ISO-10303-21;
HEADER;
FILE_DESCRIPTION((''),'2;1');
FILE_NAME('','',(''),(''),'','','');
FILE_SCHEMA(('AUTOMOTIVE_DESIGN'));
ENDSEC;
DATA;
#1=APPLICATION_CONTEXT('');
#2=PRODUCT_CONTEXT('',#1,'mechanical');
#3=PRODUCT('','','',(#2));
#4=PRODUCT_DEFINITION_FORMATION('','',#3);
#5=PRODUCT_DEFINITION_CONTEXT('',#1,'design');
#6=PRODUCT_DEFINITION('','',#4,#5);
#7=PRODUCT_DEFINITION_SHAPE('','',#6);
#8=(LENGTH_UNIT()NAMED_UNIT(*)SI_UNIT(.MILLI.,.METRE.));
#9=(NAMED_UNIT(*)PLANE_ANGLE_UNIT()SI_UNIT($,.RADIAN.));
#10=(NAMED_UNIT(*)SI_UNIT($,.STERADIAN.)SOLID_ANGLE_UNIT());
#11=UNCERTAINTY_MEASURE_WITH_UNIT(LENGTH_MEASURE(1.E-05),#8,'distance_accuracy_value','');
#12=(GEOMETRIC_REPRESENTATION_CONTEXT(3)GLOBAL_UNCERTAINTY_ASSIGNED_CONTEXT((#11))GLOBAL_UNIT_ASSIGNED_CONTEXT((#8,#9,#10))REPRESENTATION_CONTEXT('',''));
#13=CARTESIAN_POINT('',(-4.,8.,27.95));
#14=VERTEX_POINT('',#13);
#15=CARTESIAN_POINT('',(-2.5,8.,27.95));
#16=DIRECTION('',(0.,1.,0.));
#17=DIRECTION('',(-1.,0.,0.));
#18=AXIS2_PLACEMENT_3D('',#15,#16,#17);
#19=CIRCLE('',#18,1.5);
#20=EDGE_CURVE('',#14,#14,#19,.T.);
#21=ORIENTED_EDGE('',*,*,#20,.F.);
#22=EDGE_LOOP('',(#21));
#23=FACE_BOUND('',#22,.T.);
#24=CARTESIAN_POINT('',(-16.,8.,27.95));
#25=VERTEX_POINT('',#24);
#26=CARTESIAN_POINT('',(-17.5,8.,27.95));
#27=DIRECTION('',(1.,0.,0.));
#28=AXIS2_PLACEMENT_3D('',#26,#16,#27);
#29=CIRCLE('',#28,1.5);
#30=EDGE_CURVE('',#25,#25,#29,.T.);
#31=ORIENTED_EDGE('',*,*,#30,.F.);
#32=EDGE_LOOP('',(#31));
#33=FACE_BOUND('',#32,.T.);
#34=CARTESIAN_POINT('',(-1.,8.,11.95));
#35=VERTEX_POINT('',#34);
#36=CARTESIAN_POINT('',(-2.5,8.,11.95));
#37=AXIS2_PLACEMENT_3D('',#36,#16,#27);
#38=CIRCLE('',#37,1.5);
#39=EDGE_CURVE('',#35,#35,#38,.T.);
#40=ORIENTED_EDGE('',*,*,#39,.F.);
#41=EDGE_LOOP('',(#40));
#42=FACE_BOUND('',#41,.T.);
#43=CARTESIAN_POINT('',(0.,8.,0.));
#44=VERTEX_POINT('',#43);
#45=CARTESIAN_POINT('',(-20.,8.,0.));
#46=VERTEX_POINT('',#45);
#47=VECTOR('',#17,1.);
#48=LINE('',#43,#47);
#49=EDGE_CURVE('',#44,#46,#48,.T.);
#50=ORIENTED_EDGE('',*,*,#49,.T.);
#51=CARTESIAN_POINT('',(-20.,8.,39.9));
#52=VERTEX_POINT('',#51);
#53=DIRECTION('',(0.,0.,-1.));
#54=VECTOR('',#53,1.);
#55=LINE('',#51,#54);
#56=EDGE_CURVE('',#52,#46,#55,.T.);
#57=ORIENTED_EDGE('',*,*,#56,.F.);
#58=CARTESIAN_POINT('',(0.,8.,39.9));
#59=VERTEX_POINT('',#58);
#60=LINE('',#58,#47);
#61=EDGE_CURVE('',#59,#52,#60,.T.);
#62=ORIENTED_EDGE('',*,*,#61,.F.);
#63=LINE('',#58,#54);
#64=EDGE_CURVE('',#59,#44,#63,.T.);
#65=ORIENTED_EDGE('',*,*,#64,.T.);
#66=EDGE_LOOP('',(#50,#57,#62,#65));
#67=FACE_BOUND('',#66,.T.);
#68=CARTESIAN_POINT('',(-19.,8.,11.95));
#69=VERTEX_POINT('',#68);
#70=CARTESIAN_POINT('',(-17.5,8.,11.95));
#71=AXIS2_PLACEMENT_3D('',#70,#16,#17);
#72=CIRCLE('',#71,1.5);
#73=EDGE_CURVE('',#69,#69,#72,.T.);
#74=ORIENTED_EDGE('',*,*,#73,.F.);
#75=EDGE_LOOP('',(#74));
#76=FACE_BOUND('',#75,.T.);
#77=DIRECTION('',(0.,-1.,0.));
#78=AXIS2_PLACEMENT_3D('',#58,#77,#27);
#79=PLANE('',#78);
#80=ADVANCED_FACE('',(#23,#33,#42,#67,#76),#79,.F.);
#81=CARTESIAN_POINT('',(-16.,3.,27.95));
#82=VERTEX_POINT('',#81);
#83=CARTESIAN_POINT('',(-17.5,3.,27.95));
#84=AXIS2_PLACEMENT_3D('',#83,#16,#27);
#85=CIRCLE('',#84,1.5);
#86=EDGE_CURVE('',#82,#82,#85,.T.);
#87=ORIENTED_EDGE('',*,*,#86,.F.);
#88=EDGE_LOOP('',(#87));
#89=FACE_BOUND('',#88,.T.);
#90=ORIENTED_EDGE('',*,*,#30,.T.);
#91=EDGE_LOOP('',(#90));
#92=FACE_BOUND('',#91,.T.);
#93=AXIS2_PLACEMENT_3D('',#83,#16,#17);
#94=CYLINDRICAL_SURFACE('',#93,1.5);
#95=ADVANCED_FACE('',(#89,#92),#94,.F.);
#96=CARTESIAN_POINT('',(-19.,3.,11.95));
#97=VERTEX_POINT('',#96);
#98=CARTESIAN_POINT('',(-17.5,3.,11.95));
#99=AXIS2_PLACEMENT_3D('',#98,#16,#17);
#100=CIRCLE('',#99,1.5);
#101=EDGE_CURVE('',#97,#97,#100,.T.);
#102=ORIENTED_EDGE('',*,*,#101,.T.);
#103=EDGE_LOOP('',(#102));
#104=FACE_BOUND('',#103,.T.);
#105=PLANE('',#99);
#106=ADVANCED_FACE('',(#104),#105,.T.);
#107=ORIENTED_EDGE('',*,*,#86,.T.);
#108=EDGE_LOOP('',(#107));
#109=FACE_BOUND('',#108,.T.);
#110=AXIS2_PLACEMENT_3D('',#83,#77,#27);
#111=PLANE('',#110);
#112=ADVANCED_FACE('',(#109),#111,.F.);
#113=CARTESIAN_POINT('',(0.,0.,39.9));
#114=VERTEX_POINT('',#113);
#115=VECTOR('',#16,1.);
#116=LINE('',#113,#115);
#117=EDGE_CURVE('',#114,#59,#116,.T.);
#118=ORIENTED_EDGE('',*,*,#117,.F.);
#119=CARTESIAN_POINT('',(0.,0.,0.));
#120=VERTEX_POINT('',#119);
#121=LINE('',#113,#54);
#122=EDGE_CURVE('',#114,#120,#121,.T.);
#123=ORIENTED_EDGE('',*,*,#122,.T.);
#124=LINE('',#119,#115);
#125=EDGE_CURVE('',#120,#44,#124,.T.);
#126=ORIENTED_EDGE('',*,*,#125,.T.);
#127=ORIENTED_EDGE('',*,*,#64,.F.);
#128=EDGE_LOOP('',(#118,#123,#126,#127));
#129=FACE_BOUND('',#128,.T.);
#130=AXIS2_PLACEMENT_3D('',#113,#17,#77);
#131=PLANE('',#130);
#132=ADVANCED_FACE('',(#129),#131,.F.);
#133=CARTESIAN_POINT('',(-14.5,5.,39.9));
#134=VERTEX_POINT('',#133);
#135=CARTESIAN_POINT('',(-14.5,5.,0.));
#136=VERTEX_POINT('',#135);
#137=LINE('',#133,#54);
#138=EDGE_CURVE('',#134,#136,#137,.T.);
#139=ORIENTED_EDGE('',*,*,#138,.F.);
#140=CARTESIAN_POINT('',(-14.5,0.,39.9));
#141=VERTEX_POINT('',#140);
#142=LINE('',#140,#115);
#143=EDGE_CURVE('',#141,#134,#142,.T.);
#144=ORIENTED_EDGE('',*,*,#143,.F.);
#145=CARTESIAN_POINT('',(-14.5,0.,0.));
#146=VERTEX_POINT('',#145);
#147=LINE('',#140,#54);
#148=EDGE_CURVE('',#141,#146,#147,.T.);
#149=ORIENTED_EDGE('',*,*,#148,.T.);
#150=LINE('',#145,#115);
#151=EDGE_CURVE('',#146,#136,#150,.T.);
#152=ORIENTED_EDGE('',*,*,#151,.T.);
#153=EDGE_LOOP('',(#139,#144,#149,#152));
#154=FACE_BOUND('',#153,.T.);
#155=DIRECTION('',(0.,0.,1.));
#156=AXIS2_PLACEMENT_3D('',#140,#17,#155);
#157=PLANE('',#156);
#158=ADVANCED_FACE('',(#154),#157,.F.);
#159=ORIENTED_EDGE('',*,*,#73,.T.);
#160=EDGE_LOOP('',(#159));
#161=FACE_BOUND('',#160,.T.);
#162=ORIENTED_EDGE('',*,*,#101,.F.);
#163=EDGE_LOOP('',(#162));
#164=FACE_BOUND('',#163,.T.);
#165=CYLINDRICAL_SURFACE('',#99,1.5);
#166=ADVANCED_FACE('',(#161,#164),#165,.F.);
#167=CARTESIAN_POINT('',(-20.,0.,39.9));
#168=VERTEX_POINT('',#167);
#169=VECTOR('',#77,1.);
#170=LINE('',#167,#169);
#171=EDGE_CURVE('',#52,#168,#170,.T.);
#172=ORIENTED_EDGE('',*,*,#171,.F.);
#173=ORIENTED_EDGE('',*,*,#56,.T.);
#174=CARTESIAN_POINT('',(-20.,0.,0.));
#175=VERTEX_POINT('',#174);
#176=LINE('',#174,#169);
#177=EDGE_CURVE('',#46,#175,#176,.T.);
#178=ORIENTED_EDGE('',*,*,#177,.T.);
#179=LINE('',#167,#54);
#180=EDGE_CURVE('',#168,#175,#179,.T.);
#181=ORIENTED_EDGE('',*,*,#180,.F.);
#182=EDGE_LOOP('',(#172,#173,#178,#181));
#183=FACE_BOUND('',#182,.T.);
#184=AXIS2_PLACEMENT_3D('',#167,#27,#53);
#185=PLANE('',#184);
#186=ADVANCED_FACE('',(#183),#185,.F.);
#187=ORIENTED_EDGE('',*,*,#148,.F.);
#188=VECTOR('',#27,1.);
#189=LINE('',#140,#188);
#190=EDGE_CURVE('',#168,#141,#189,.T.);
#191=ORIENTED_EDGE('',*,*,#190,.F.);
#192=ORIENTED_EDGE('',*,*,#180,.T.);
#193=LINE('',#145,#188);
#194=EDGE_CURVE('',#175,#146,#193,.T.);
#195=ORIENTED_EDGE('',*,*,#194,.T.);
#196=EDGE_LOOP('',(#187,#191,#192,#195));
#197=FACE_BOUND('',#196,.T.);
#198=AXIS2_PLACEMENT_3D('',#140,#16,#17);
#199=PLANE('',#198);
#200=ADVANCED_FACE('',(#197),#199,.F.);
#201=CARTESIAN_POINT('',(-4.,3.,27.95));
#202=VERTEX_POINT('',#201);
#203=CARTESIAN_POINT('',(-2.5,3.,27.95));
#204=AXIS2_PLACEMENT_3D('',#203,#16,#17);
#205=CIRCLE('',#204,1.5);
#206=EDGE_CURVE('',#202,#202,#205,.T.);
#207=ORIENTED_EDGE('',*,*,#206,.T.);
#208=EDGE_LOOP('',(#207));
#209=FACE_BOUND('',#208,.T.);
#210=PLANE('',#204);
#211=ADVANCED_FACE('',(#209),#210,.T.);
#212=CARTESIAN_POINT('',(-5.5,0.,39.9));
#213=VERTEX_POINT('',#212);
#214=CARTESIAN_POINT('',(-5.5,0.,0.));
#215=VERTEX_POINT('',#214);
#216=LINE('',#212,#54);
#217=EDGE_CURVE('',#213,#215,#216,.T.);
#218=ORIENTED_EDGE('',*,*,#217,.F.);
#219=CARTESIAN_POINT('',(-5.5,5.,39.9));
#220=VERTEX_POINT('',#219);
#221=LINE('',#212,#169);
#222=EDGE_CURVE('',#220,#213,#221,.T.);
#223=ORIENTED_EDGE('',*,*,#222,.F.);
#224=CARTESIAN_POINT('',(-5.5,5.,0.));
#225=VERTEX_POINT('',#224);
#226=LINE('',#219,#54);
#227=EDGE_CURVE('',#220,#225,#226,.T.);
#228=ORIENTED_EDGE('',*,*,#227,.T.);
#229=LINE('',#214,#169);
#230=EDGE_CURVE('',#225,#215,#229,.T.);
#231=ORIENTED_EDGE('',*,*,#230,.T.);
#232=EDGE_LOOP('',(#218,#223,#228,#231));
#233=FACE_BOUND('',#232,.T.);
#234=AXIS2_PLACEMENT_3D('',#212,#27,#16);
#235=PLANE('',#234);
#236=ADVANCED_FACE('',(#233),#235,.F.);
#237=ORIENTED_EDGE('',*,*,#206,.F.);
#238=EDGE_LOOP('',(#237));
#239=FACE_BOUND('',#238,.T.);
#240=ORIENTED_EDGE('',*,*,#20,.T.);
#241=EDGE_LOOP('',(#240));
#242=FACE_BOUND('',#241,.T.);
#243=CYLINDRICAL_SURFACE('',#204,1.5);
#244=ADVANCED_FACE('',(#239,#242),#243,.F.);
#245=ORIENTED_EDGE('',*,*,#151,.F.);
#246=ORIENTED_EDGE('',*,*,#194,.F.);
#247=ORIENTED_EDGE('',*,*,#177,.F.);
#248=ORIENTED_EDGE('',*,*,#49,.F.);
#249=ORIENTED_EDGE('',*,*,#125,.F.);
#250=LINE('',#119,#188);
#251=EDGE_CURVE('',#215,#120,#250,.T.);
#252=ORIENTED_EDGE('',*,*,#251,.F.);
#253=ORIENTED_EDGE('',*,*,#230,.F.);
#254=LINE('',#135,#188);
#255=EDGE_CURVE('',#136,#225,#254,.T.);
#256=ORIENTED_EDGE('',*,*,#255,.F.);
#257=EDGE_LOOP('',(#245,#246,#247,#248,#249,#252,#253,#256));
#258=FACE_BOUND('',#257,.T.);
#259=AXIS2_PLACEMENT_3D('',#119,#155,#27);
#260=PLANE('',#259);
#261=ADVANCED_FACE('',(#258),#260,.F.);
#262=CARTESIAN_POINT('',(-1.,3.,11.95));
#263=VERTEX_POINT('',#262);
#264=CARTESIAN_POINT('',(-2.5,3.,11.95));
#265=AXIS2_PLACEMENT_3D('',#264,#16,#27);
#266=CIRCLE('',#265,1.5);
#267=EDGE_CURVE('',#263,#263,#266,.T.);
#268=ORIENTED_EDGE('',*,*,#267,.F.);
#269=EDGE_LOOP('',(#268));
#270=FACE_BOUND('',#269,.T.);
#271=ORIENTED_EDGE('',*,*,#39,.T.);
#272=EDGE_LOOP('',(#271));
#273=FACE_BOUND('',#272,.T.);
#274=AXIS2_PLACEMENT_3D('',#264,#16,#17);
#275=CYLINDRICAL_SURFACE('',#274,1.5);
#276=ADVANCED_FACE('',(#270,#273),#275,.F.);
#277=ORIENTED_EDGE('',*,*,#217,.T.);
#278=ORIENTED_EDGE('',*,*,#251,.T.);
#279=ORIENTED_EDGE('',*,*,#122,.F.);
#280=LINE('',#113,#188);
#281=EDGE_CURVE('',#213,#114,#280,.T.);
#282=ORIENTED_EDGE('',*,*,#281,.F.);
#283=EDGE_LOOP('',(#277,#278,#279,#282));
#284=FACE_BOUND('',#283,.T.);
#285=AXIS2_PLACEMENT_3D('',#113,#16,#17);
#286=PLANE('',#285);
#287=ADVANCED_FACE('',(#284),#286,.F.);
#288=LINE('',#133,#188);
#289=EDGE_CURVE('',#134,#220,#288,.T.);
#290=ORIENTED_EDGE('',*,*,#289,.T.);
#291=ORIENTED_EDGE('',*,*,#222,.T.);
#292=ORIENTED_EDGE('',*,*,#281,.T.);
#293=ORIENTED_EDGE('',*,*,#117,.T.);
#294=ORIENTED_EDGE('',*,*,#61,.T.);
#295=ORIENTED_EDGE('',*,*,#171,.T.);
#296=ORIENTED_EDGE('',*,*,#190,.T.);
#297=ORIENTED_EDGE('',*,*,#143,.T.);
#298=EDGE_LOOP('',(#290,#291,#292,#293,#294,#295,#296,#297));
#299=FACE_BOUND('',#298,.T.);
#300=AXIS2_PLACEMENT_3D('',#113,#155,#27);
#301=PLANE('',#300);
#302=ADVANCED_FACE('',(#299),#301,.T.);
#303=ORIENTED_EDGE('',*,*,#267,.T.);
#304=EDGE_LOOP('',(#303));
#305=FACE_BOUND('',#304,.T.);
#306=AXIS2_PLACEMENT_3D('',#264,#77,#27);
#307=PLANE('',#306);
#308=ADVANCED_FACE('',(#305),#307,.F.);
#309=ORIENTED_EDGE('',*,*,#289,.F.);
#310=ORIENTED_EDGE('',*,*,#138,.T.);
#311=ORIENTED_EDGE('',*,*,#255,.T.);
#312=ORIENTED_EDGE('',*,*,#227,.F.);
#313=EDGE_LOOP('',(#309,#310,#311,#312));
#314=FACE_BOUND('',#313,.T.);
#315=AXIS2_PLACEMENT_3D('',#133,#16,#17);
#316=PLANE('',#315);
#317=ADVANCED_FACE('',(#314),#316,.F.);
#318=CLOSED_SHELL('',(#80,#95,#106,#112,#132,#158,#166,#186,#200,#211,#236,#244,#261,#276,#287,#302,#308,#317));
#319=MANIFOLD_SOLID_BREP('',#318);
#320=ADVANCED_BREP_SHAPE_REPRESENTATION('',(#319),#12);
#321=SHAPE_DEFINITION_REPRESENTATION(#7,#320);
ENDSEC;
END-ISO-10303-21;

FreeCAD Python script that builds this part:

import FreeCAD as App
import Part
import Sketcher
from FreeCAD import Vector
Q = App.Units.Quantity

doc = App.newDocument("Part")
body = doc.addObject("PartDesign::Body", "Body")

sketch1 = body.newObject("Sketcher::SketchObject", "Sketch")
sketch1.AttachmentSupport = (doc.getObject("XY_Plane"), [""])
sketch1.MapMode = "FlatFace"
sketch1.addGeometry([
    Part.LineSegment(Vector(-6, 0, 0), Vector(0, 0, 0)),
    Part.LineSegment(Vector(0, 0, 0), Vector(0, 8, 0)),
    Part.LineSegment(Vector(0, 8, 0), Vector(-20, 8, 0)),
    Part.LineSegment(Vector(-20, 8, 0), Vector(-20, 0, 0)),
    Part.LineSegment(Vector(-20, 0, 0), Vector(-14, 0, 0)),
    Part.LineSegment(Vector(-14, 0, 0), Vector(-14, 5, 0)),
    Part.LineSegment(Vector(-14, 5, 0), Vector(-6, 5, 0)),
    Part.LineSegment(Vector(-6, 5, 0), Vector(-6, 0, 0)),
], False)
sketch1.addConstraint([
    Sketcher.Constraint("Coincident", 0, 2, 1, 1),
    Sketcher.Constraint("Coincident", 1, 2, 2, 1),
    Sketcher.Constraint("Coincident", 2, 2, 3, 1),
    Sketcher.Constraint("Coincident", 3, 2, 4, 1),
    Sketcher.Constraint("Coincident", 4, 2, 5, 1),
    Sketcher.Constraint("Coincident", 5, 2, 6, 1),
    Sketcher.Constraint("Coincident", 6, 2, 7, 1),
    Sketcher.Constraint("Coincident", 7, 2, 0, 1),
    Sketcher.Constraint("Horizontal", 0),
    Sketcher.Constraint("Vertical", 1),
    Sketcher.Constraint("Horizontal", 2),
    Sketcher.Constraint("Vertical", 3),
    Sketcher.Constraint("Horizontal", 4),
    Sketcher.Constraint("Vertical", 5),
    Sketcher.Constraint("Horizontal", 6),
    Sketcher.Constraint("Vertical", 7),
    Sketcher.Constraint("Coincident", 0, 2, -1, 1),
    Sketcher.Constraint("PointOnObject", 3, 2, -1),
    Sketcher.Constraint("Equal", 0, 4),
    Sketcher.Constraint("DistanceX", 2, 2, 2, 1, Q("20 mm")),
    Sketcher.Constraint("DistanceX", 6, 1, 6, 2, Q("9 mm")),
    Sketcher.Constraint("DistanceY", 1, 1, 1, 2, Q("8 mm")),
    Sketcher.Constraint("DistanceY", 5, 1, 5, 2, Q("5 mm")),
])
pad1 = body.newObject("PartDesign::Pad", "Pad")
pad1.Profile = sketch1
pad1.Length = 39.9

sketch2 = body.newObject("Sketcher::SketchObject", "Sketch001")
sketch2.AttachmentSupport = (doc.getObject("XZ_Plane"), [""])
sketch2.MapMode = "FlatFace"
sketch2.AttachmentOffset = App.Placement(Vector(0, 0, -8), App.Rotation())
sketch2.addGeometry([
    Part.Circle(Vector(-17.5, 11.9, 0), Vector(0, 0, 1), 1.5),
    Part.Circle(Vector(-2.5, 11.9, 0), Vector(0, 0, 1), 1.5),
    Part.Circle(Vector(-2.5, 27.9, 0), Vector(0, 0, 1), 1.5),
    Part.Circle(Vector(-17.5, 27.9, 0), Vector(0, 0, 1), 1.5),
], False)
sketch2.addConstraint([
    Sketcher.Constraint("Equal", 0, 1),
    Sketcher.Constraint("Equal", 1, 2),
    Sketcher.Constraint("Equal", 2, 3),
    Sketcher.Constraint("Horizontal", 0, 3, 1, 3),
    Sketcher.Constraint("Horizontal", 2, 3, 3, 3),
    Sketcher.Constraint("Vertical", 1, 3, 2, 3),
    Sketcher.Constraint("Vertical", 0, 3, 3, 3),
    Sketcher.Constraint("Diameter", 0, Q("3 mm")),
    Sketcher.Constraint("DistanceX", 0, 3, 1, 3, Q("15 mm")),
    Sketcher.Constraint("DistanceY", 1, 3, 2, 3, Q("16 mm")),
    Sketcher.Constraint("DistanceX", 0, 3, -1, 1, Q("17.5 mm")),
    Sketcher.Constraint("DistanceY", -1, 1, 0, 3, Q("11.95 mm")),
])
pocket1 = body.newObject("PartDesign::Pocket", "Pocket")
pocket1.Profile = sketch2
pocket1.Length = 5
pocket1.Reversed = True

doc.recompute()
